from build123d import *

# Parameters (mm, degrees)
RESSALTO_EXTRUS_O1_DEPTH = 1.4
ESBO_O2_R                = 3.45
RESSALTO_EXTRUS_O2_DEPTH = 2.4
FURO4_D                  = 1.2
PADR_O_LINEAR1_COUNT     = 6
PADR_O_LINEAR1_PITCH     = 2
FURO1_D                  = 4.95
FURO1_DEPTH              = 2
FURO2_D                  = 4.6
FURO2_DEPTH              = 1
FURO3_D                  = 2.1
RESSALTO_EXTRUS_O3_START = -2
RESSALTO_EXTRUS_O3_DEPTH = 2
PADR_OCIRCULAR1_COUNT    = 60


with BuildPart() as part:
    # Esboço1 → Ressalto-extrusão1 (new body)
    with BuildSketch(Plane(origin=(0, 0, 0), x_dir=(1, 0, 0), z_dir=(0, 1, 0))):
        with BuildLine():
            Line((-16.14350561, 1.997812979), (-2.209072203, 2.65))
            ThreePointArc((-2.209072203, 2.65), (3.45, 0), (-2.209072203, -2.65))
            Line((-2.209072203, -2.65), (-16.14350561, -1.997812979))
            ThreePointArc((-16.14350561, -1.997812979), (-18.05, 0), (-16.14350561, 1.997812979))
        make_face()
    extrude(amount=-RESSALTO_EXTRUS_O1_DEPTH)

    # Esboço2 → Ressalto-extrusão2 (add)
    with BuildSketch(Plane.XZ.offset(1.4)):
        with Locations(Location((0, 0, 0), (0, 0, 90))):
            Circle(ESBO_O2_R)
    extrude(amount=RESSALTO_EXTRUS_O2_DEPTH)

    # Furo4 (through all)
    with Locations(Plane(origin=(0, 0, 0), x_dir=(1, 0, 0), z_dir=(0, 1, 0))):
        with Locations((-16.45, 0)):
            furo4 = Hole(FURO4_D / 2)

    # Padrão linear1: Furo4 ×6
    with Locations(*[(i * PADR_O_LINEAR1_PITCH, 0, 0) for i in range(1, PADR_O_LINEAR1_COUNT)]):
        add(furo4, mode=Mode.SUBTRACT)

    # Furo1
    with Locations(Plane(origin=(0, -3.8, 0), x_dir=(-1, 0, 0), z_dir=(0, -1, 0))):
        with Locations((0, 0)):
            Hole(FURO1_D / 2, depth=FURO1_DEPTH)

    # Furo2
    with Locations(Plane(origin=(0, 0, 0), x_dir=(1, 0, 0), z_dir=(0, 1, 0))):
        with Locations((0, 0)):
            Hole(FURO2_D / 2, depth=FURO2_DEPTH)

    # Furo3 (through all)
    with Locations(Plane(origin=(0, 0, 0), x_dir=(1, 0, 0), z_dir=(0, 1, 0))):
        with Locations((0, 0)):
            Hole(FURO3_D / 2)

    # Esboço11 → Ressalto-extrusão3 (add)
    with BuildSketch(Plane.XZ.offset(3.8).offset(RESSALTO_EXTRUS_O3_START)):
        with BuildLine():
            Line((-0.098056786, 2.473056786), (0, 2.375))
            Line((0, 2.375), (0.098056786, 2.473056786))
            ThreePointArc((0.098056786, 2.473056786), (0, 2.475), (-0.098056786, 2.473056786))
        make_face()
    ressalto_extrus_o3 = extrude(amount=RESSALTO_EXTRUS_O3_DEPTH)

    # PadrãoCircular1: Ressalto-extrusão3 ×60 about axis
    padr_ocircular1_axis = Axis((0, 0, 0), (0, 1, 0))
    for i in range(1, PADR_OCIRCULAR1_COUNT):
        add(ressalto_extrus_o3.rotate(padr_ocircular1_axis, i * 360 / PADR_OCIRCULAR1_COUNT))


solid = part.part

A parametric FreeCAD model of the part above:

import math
import FreeCAD as App
import Part
import Sketcher
Q = App.Units.Quantity

doc = App.newDocument("Part")
body = doc.addObject("PartDesign::Body", "Body")

sketch1 = body.newObject("Sketcher::SketchObject", "Sketch")
sketch1.AttachmentSupport = (doc.getObject("XZ_Plane"), [""])
sketch1.MapMode = "FlatFace"
sketch1.addGeometry([
    Part.LineSegment(App.Vector(-2.2, -2.6, 0), App.Vector(-16.1, -2, 0)),
    Part.ArcOfCircle(Part.Circle(App.Vector(-16.1, 0, 0), App.Vector(0, 0, 1), 2), math.radians(93), math.radians(267)),
    Part.LineSegment(App.Vector(-16.1, 2, 0), App.Vector(-2.2, 2.6, 0)),
    Part.ArcOfCircle(Part.Circle(App.Vector(0, 0, 0), App.Vector(0, 0, 1), 3.5), math.radians(-130), math.radians(130)),
], False)
sketch1.addConstraint([
    Sketcher.Constraint("Tangent", 0, 2, 1, 2),
    Sketcher.Constraint("Tangent", 1, 1, 2, 1),
    Sketcher.Constraint("Coincident", 2, 2, 3, 2),
    Sketcher.Constraint("Coincident", 3, 1, 0, 1),
    Sketcher.Constraint("Coincident", 3, 3, -1, 1),
    Sketcher.Constraint("Symmetric", 0, 2, 1, 1, -1),
    Sketcher.Constraint("Radius", 1, Q("2 mm")),
    Sketcher.Constraint("Radius", 3, Q("3.45 mm")),
    Sketcher.Constraint("DistanceY", 3, 1, 2, 2, Q("5.3 mm")),
    Sketcher.Constraint("DistanceX", 1, 3, -1, 1, Q("16.05 mm")),
])
pad1 = body.newObject("PartDesign::Pad", "Pad")
pad1.Profile = sketch1
pad1.Length = 1.4

sketch2 = body.newObject("Sketcher::SketchObject", "Sketch001")
sketch2.AttachmentSupport = (doc.getObject("XZ_Plane"), [""])
sketch2.MapMode = "FlatFace"
sketch2.AttachmentOffset = App.Placement(App.Vector(0, 0, 1.4), App.Rotation())
sketch2.addGeometry(Part.Circle(App.Vector(0, 0, 0), App.Vector(0, 0, 1), 3.5), False)
sketch2.addConstraint([
    Sketcher.Constraint("Coincident", 0, 3, -1, 1),
    Sketcher.Constraint("Diameter", 0, Q("6.9 mm")),
])
pad2 = body.newObject("PartDesign::Pad", "Pad001")
pad2.Profile = sketch2
pad2.Length = 2.4

sketch3 = body.newObject("Sketcher::SketchObject", "Sketch002")
sketch3.AttachmentSupport = (doc.getObject("XZ_Plane"), [""])
sketch3.MapMode = "FlatFace"
sketch3.addGeometry(Part.Circle(App.Vector(-16.4, 0, 0), App.Vector(0, 0, 1), 0.6), False)
sketch3.addConstraint([
    Sketcher.Constraint("PointOnObject", 0, 3, -1),
    Sketcher.Constraint("Diameter", 0, Q("1.2 mm")),
    Sketcher.Constraint("DistanceX", 0, 3, -1, 1, Q("16.45 mm")),
])
doc.recompute()
hole = body.newObject("PartDesign::Hole", "Hole")
hole.Profile = sketch3
hole.ThreadType = "None"
hole.Diameter = 1.2
hole.DepthType = "ThroughAll"
hole.Reversed = True
doc.recompute()

linearpattern = body.newObject("PartDesign::LinearPattern", "LinearPattern")
linearpattern.Originals = [hole]
linearpattern.Direction = (doc.getObject("X_Axis"), [""])
linearpattern.Mode = "offset"
linearpattern.Offset = 2
linearpattern.Occurrences = 6
body.Tip = linearpattern

sketch4 = body.newObject("Sketcher::SketchObject", "Sketch003")
sketch4.AttachmentSupport = (doc.getObject("XZ_Plane"), [""])
sketch4.MapMode = "FlatFace"
sketch4.AttachmentOffset = App.Placement(App.Vector(0, 0, 3.8), App.Rotation())
sketch4.addGeometry(Part.Circle(App.Vector(0, 0, 0), App.Vector(0, 0, 1), 2.5), False)
sketch4.addConstraint([
    Sketcher.Constraint("Coincident", 0, 3, -1, 1),
    Sketcher.Constraint("Diameter", 0, Q("4.95 mm")),
])
doc.recompute()
hole2 = body.newObject("PartDesign::Hole", "Hole001")
hole2.Profile = sketch4
hole2.ThreadType = "None"
hole2.Diameter = 4.95
hole2.DepthType = "Dimension"
hole2.Depth = 2
hole2.DrillPoint = "Flat"

sketch5 = body.newObject("Sketcher::SketchObject", "Sketch004")
sketch5.AttachmentSupport = (doc.getObject("XZ_Plane"), [""])
sketch5.MapMode = "FlatFace"
sketch5.addGeometry(Part.Circle(App.Vector(0, 0, 0), App.Vector(0, 0, 1), 2.3), False)
sketch5.addConstraint([
    Sketcher.Constraint("Coincident", 0, 3, -1, 1),
    Sketcher.Constraint("Diameter", 0, Q("4.6 mm")),
])
doc.recompute()
hole3 = body.newObject("PartDesign::Hole", "Hole002")
hole3.Profile = sketch5
hole3.ThreadType = "None"
hole3.Diameter = 4.6
hole3.DepthType = "Dimension"
hole3.Depth = 1
hole3.DrillPoint = "Flat"
hole3.Reversed = True

sketch6 = body.newObject("Sketcher::SketchObject", "Sketch005")
sketch6.AttachmentSupport = (doc.getObject("XZ_Plane"), [""])
sketch6.MapMode = "FlatFace"
sketch6.addGeometry(Part.Circle(App.Vector(0, 0, 0), App.Vector(0, 0, 1), 1.1), False)
sketch6.addConstraint([
    Sketcher.Constraint("Coincident", 0, 3, -1, 1),
    Sketcher.Constraint("Diameter", 0, Q("2.1 mm")),
])
doc.recompute()
hole4 = body.newObject("PartDesign::Hole", "Hole003")
hole4.Profile = sketch6
hole4.ThreadType = "None"
hole4.Diameter = 2.1
hole4.DepthType = "ThroughAll"
hole4.Reversed = True

sketch7 = body.newObject("Sketcher::SketchObject", "Sketch006")
sketch7.AttachmentSupport = (doc.getObject("XZ_Plane"), [""])
sketch7.MapMode = "FlatFace"
sketch7.AttachmentOffset = App.Placement(App.Vector(0, 0, 1.8), App.Rotation())
sketch7.addGeometry([
    Part.LineSegment(App.Vector(-0.1, 2.47, 0), App.Vector(0, 2.38, 0)),
    Part.LineSegment(App.Vector(0, 2.38, 0), App.Vector(0.1, 2.47, 0)),
    Part.ArcOfCircle(Part.Circle(App.Vector(0, 0, 0), App.Vector(0, 0, 1), 2.48), math.radians(87.73), math.radians(92.27)),
], False)
sketch7.addConstraint([
    Sketcher.Constraint("Coincident", 0, 2, 1, 1),
    Sketcher.Constraint("Coincident", 1, 2, 2, 1),
    Sketcher.Constraint("Coincident", 2, 2, 0, 1),
    Sketcher.Constraint("Coincident", 2, 3, -1, 1),
    Sketcher.Constraint("PointOnObject", 0, 2, -2),
    Sketcher.Constraint("Perpendicular", 0, 1),
    Sketcher.Constraint("Horizontal", 1, 2, 2, 2),
    Sketcher.Constraint("Radius", 2, Q("2.475 mm")),
    Sketcher.Constraint("DistanceY", -1, 1, 0, 2, Q("2.375 mm")),
])
pad3 = body.newObject("PartDesign::Pad", "Pad002")
pad3.Profile = sketch7
pad3.Length = 2
doc.recompute()

polarpattern = body.newObject("PartDesign::PolarPattern", "PolarPattern")
polarpattern.Originals = [pad3]
polarpattern.Axis = (doc.getObject("Y_Axis"), [""])
polarpattern.Angle = 360
polarpattern.Occurrences = 60
body.Tip = polarpattern

doc.recompute()
